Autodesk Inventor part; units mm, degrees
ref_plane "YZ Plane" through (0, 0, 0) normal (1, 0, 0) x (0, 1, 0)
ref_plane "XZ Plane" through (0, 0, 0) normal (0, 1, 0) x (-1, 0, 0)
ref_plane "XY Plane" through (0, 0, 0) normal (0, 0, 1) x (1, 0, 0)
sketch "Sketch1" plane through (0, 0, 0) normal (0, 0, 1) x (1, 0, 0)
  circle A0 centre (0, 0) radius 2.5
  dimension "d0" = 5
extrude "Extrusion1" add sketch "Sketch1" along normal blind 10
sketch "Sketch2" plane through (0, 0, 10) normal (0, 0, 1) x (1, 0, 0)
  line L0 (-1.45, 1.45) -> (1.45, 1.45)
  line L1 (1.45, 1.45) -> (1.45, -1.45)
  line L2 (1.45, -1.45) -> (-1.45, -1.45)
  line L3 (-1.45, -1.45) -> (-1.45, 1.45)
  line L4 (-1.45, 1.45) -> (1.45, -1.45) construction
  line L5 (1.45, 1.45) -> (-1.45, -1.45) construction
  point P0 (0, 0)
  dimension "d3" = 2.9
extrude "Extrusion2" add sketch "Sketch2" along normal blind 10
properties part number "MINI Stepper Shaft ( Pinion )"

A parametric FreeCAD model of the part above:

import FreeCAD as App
import Part
import Sketcher

V = App.Vector
Q = App.Units.Quantity


def add_polygon(sketch, points):
    """Adds a closed chain of lines whose ends are joined by coincident constraints."""
    first, n = sketch.GeometryCount, len(points)
    for a, b in zip(points, points[1:] + points[:1]):
        sketch.addGeometry(Part.LineSegment(App.Vector(*a, 0), App.Vector(*b, 0)), False)
    for i in range(n):
        sketch.addConstraint(Sketcher.Constraint("Coincident", first + i, 2, first + (i + 1) % n, 1))

doc = App.newDocument("Part")
body = doc.addObject("PartDesign::Body", "Body")

# Sketch on XY plane
sketch1 = body.newObject("Sketcher::SketchObject", "Sketch")
sketch1.AttachmentSupport = (doc.getObject("XY_Plane"), [""])
sketch1.MapMode = "FlatFace"
sketch1.addGeometry(Part.Circle(V(0, 0, 0), V(0, 0, 1), 2.5), False)
sketch1.addConstraint([
    Sketcher.Constraint("Coincident", 0, 3, -1, 1),
    Sketcher.Constraint("Diameter", 0, Q("5 mm")),
])
pad1 = body.newObject("PartDesign::Pad", "Pad")
pad1.Profile = sketch1
pad1.Length = 10

# Sketch on XY plane
sketch2 = body.newObject("Sketcher::SketchObject", "Sketch001")
sketch2.AttachmentSupport = (doc.getObject("XY_Plane"), [""])
sketch2.MapMode = "FlatFace"
sketch2.AttachmentOffset = App.Placement(V(0, 0, 10), App.Rotation())
add_polygon(sketch2, [(1.4, 1.4), (-1.4, 1.4), (-1.4, -1.4), (1.4, -1.4)])  # lines 0-3
sketch2.addConstraint([
    Sketcher.Constraint("Horizontal", 0),
    Sketcher.Constraint("Vertical", 1),
    Sketcher.Constraint("Horizontal", 2),
    Sketcher.Constraint("Vertical", 3),
    Sketcher.Constraint("Symmetric", 0, 2, 2, 2, -1, 1),
    Sketcher.Constraint("Equal", 2, 1),
    Sketcher.Constraint("DistanceX", 0, 2, 0, 1, Q("2.9 mm")),
])
pad2 = body.newObject("PartDesign::Pad", "Pad001")
pad2.Profile = sketch2
pad2.Length = 10

doc.recompute()
